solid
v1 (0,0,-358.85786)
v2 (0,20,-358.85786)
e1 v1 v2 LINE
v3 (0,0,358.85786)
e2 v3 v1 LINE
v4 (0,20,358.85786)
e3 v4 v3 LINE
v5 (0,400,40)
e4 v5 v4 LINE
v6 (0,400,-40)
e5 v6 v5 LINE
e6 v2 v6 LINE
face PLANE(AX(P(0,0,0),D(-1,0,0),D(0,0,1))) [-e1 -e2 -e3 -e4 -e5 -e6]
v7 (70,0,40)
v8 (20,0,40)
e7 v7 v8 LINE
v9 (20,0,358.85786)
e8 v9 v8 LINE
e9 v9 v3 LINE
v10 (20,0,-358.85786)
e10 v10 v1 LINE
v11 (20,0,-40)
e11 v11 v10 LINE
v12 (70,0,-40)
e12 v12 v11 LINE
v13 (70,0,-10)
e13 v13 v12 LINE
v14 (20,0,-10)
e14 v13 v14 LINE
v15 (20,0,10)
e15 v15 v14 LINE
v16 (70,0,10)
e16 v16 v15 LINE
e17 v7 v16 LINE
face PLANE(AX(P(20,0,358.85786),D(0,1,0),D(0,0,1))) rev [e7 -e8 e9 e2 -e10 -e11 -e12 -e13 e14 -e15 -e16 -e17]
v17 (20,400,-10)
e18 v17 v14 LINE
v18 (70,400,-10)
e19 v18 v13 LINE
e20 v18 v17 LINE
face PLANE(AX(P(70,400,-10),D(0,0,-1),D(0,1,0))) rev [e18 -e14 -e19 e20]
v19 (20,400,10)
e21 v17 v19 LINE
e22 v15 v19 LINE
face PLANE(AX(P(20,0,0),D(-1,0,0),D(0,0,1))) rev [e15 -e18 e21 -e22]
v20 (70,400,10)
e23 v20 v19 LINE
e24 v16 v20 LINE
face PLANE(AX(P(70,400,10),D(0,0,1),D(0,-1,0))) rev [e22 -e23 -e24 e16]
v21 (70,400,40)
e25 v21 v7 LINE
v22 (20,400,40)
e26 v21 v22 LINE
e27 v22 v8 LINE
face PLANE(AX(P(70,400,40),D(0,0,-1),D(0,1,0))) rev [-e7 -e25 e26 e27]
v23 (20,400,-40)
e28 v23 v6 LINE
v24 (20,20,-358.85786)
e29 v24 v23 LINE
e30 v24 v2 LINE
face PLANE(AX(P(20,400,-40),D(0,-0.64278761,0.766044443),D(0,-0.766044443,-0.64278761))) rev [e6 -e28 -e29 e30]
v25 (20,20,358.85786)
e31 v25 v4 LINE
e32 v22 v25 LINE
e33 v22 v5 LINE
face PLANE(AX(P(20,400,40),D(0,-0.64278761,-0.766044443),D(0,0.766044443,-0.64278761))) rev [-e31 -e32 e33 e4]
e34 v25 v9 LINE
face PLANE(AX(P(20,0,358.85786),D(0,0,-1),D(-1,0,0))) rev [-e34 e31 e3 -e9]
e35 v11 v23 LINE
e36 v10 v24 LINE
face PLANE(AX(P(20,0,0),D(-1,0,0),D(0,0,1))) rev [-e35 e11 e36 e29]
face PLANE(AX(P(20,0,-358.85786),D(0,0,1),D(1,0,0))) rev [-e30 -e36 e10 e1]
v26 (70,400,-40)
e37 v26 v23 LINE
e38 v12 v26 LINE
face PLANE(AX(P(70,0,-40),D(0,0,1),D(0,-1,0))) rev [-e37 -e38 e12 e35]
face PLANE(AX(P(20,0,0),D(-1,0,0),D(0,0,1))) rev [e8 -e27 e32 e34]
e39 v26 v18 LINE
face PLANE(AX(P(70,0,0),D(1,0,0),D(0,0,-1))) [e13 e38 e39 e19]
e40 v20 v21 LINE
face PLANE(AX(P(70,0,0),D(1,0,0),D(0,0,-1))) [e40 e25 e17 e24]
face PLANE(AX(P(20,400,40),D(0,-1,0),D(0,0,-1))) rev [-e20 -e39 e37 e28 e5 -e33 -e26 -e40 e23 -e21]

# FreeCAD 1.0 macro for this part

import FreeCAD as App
import Part
import Sketcher
from FreeCAD import Vector
Q = App.Units.Quantity


def add_polygon(sketch, points):
    """Adds a closed chain of lines whose ends are joined by coincident constraints."""
    first, n = sketch.GeometryCount, len(points)
    for a, b in zip(points, points[1:] + points[:1]):
        sketch.addGeometry(Part.LineSegment(App.Vector(*a, 0), App.Vector(*b, 0)), False)
    for i in range(n):
        sketch.addConstraint(Sketcher.Constraint("Coincident", first + i, 2, first + (i + 1) % n, 1))

doc = App.newDocument("Part")
body = doc.addObject("PartDesign::Body", "Body")

sketch1 = body.newObject("Sketcher::SketchObject", "Sketch")
sketch1.AttachmentSupport = (doc.getObject("YZ_Plane"), [""])
sketch1.MapMode = "FlatFace"
add_polygon(sketch1, [(400, -40), (400, 40), (20, 358.85786), (0, 358.85786), (0, -358.85786), (20, -358.85786)])
sketch1.addConstraint([
    Sketcher.Constraint("Vertical", 0),
    Sketcher.Constraint("Horizontal", 2),
    Sketcher.Constraint("Vertical", 3),
    Sketcher.Constraint("Horizontal", 4),
    Sketcher.Constraint("Symmetric", 2, 2, 3, 2, -1, 1),
    Sketcher.Constraint("Vertical", 1, 2, 4, 2),
    Sketcher.Constraint("Equal", 1, 5),
    Sketcher.Constraint("DistanceX", 2, 2, 2, 1, 20.0),
    Sketcher.Constraint("DistanceY", 0, 1, 0, 2, 80.0),
    Sketcher.Constraint("Angle", 1, Q("140 deg")),
    Sketcher.Constraint("DistanceX", -1, 1, 0, 2, 400.0),
])
pad1 = body.newObject("PartDesign::Pad", "Pad")
pad1.Profile = sketch1
pad1.Length = 20

sketch2 = body.newObject("Sketcher::SketchObject", "Sketch001")
sketch2.AttachmentSupport = (doc.getObject("YZ_Plane"), [""])
sketch2.MapMode = "FlatFace"
sketch2.AttachmentOffset = App.Placement(Vector(0, 0, 20), App.Rotation())
add_polygon(sketch2, [(400, 40), (0, 40), (0, 10), (400, 10)])
add_polygon(sketch2, [(400, -10), (0, -10), (0, -40), (400, -40)])
sketch2.addConstraint([
    Sketcher.Constraint("Horizontal", 0),
    Sketcher.Constraint("Vertical", 1),
    Sketcher.Constraint("Horizontal", 2),
    Sketcher.Constraint("Vertical", 3),
    Sketcher.Constraint("Horizontal", 4),
    Sketcher.Constraint("Vertical", 5),
    Sketcher.Constraint("Horizontal", 6),
    Sketcher.Constraint("Vertical", 7),
    Sketcher.Constraint("Symmetric", 1, 2, 4, 2, -1, 1),
    Sketcher.Constraint("Symmetric", 0, 2, 5, 2, -1),
    Sketcher.Constraint("Vertical", 3, 2, 6, 2),
    Sketcher.Constraint("DistanceX", 0, 2, 0, 1, 400.0),
    Sketcher.Constraint("DistanceY", 1, 2, 1, 1, 30.0),
    Sketcher.Constraint("DistanceY", -1, 1, 0, 2, 40.0),
])
pad2 = body.newObject("PartDesign::Pad", "Pad001")
pad2.Profile = sketch2
pad2.Length = 50

doc.recompute()
